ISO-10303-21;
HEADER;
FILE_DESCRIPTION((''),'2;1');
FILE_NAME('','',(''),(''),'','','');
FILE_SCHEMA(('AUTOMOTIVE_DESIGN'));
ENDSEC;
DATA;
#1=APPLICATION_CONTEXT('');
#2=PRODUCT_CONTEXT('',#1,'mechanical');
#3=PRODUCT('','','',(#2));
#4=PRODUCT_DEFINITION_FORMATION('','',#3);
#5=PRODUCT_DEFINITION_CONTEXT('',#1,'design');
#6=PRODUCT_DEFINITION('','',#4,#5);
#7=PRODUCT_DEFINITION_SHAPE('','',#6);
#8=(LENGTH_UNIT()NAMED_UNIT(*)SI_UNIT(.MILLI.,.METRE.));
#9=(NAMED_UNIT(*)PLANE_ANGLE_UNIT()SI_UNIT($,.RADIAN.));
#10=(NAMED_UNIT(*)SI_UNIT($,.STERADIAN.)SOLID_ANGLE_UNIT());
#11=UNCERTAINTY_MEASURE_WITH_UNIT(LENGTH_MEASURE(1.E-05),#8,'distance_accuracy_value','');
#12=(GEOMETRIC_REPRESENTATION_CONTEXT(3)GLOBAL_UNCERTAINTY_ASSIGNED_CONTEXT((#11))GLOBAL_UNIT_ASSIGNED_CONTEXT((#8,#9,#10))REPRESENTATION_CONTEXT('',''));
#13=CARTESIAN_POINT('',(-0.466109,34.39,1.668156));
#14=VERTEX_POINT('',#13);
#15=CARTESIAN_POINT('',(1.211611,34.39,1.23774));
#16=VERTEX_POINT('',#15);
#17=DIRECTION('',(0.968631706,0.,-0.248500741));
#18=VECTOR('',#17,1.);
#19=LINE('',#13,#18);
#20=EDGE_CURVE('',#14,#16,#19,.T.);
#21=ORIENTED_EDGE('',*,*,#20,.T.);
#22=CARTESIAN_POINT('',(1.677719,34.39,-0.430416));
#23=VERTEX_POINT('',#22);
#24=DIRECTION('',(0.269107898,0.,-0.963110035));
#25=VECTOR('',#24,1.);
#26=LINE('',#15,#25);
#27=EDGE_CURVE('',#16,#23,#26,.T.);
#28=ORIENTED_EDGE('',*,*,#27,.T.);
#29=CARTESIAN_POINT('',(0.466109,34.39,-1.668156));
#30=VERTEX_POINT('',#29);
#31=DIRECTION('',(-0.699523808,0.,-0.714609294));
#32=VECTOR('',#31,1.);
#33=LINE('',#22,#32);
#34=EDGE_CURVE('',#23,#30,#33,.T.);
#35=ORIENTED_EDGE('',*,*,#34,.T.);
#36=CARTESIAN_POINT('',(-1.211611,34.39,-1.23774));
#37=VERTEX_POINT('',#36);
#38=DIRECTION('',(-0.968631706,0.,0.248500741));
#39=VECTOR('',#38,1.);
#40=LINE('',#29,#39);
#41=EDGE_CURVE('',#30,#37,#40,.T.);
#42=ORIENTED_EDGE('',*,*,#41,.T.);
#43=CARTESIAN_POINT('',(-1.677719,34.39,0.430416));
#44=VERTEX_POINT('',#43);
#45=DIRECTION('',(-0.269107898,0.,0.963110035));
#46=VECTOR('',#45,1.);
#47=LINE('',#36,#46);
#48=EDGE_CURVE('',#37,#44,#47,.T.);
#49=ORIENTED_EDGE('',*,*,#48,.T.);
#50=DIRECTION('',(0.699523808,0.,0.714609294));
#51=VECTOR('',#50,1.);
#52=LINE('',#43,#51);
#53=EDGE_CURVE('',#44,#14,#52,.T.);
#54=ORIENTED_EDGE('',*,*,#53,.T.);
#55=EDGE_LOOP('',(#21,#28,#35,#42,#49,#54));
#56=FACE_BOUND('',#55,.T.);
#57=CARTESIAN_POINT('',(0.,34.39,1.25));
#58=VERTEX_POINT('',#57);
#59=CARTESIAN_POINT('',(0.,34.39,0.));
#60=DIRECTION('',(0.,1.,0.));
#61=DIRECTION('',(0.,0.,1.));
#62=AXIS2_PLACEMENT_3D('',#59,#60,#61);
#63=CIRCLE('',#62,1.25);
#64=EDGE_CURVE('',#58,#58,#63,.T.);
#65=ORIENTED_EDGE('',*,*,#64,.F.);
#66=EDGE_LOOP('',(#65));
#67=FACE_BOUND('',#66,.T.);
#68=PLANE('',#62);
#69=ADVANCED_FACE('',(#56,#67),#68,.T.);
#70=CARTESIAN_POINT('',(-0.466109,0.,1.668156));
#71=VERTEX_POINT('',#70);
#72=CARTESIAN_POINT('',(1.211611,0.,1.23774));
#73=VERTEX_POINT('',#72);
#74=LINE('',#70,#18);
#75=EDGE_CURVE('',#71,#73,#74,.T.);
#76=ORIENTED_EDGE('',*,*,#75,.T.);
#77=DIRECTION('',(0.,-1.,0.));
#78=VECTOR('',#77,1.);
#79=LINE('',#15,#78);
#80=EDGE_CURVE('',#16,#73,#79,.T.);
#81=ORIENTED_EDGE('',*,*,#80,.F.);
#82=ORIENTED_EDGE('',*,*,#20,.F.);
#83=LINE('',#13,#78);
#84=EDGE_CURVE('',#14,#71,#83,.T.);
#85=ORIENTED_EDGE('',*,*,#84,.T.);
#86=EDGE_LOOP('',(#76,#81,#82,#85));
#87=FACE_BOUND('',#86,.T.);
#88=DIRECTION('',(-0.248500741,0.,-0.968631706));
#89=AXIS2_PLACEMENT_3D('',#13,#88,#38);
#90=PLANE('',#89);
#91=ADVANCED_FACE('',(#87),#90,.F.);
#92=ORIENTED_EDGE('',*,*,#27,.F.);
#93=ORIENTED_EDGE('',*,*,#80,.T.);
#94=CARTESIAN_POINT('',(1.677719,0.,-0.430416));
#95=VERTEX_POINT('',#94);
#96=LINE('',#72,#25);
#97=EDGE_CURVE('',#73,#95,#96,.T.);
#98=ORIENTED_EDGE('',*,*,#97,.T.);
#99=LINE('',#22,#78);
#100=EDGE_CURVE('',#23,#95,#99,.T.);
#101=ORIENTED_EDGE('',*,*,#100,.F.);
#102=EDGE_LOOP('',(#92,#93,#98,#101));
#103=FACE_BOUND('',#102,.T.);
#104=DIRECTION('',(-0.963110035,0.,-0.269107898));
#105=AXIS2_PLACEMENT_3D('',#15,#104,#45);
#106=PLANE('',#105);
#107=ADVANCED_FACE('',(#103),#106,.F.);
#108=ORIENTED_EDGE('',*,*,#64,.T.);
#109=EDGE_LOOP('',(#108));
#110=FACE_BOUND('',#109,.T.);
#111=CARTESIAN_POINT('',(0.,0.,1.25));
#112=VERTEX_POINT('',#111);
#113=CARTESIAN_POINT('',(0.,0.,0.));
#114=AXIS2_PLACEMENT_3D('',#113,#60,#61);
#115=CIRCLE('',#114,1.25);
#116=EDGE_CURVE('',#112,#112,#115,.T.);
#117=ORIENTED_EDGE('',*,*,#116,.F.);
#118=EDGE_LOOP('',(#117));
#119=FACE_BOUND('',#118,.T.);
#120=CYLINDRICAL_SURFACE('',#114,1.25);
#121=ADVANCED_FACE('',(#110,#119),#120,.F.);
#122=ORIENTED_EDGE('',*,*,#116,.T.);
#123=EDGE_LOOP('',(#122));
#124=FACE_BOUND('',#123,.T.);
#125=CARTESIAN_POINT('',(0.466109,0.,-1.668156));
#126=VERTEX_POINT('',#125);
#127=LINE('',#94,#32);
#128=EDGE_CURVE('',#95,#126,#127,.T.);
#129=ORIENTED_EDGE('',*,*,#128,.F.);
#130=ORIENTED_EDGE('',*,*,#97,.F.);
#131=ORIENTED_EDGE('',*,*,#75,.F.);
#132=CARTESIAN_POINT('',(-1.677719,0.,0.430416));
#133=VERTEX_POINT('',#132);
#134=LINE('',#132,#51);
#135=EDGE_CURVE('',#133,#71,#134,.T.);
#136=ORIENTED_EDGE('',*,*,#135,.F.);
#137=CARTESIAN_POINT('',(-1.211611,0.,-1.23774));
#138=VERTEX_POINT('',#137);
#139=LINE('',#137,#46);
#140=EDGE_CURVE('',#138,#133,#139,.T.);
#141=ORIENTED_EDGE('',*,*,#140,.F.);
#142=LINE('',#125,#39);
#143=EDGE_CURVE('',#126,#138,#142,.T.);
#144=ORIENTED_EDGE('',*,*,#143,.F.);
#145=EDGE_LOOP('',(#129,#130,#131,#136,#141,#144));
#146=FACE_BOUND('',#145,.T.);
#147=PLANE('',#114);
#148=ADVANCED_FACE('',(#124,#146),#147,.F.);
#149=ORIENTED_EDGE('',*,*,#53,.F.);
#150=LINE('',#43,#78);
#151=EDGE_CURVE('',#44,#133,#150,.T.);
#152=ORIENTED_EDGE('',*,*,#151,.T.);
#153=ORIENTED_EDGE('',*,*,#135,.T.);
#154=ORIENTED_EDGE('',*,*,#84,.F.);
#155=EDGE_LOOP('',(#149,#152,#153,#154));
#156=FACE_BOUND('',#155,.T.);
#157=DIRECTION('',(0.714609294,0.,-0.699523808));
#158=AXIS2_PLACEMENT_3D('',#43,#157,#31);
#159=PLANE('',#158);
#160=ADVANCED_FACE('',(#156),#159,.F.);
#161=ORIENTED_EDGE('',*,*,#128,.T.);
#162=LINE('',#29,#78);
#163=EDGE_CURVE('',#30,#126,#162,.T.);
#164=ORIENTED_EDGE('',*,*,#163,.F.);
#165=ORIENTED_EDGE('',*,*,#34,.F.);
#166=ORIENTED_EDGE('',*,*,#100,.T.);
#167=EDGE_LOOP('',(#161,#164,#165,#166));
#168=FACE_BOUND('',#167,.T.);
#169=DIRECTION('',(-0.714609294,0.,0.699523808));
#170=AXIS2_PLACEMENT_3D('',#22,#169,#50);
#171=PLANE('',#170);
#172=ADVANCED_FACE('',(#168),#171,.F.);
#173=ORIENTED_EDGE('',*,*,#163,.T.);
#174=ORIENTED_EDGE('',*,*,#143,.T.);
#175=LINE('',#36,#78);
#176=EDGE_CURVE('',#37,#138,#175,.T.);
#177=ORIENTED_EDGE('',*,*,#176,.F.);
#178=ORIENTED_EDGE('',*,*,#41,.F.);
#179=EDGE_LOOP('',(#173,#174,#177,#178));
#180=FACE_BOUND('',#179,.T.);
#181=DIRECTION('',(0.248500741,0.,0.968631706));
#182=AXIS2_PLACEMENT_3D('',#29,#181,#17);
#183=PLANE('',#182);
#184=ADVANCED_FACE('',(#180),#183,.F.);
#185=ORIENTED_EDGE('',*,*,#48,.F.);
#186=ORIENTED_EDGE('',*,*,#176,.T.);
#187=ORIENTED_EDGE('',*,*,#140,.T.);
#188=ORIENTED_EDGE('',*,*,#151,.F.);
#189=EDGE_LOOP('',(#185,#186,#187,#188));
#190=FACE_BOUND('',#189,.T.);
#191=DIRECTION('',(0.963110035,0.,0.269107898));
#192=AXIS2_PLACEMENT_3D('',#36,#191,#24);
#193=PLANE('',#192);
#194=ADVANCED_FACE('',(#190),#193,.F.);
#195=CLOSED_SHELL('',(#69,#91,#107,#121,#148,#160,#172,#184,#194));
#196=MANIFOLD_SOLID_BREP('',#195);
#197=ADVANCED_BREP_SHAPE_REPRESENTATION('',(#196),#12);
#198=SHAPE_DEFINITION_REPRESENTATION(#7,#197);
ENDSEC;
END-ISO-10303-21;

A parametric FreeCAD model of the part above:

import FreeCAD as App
import Part
import Sketcher
from FreeCAD import Vector
Q = App.Units.Quantity


def add_polygon(sketch, points):
    """Adds a closed chain of lines whose ends are joined by coincident constraints."""
    first, n = sketch.GeometryCount, len(points)
    for a, b in zip(points, points[1:] + points[:1]):
        sketch.addGeometry(Part.LineSegment(App.Vector(*a, 0), App.Vector(*b, 0)), False)
    for i in range(n):
        sketch.addConstraint(Sketcher.Constraint("Coincident", first + i, 2, first + (i + 1) % n, 1))

doc = App.newDocument("Part")
body = doc.addObject("PartDesign::Body", "Body")

sketch1 = doc.addObject("Sketcher::SketchObject", "Sketch")
body.addObject(sketch1)
sketch1.AttachmentSupport = (doc.XZ_Plane, [""])
sketch1.MapMode = "FlatFace"
add_polygon(sketch1, [(1.2, 1.2), (1.7, -0.4), (0.5, -1.7), (-1.2, -1.2), (-1.7, 0.4), (-0.5, 1.7)])
sketch1.addConstraint([
    Sketcher.Constraint("Symmetric", 0, 2, 3, 2, -1, 1),
    Sketcher.Constraint("Symmetric", 1, 2, 4, 2, -1, 1),
    Sketcher.Constraint("Symmetric", 2, 2, 5, 2, -1, 1),
    Sketcher.Constraint("Equal", 0, 1),
    Sketcher.Constraint("Equal", 1, 2),
    Sketcher.Constraint("Distance", 0, Q("1.732051 mm")),
    Sketcher.Constraint("DistanceX", -1, 1, 0, 2, Q("1.677719 mm")),
    Sketcher.Constraint("DistanceX", -1, 1, 1, 2, Q("0.466109 mm")),
    Sketcher.Constraint("DistanceX", 2, 2, -1, 1, Q("1.211611 mm")),
])
pad1 = doc.addObject("PartDesign::Pad", "Pad")
body.addObject(pad1)
pad1.Profile = sketch1
pad1.Length = 34.39
pad1.Reversed = True

sketch2 = doc.addObject("Sketcher::SketchObject", "Sketch001")
body.addObject(sketch2)
sketch2.AttachmentSupport = (doc.XZ_Plane, [""])
sketch2.MapMode = "FlatFace"
sketch2.AttachmentOffset = App.Placement(Vector(0, 0, -34.39), App.Rotation())
sketch2.addGeometry(Part.Circle(Vector(0, 0, 0), Vector(0, 0, 1), 1.2), False)
sketch2.addConstraint([
    Sketcher.Constraint("Coincident", 0, 3, -1, 1),
    Sketcher.Constraint("Diameter", 0, Q("2.5 mm")),
])
pocket1 = doc.addObject("PartDesign::Pocket", "Pocket")
body.addObject(pocket1)
pocket1.Profile = sketch2
pocket1.Length = 34.39
pocket1.Reversed = True

doc.recompute()
